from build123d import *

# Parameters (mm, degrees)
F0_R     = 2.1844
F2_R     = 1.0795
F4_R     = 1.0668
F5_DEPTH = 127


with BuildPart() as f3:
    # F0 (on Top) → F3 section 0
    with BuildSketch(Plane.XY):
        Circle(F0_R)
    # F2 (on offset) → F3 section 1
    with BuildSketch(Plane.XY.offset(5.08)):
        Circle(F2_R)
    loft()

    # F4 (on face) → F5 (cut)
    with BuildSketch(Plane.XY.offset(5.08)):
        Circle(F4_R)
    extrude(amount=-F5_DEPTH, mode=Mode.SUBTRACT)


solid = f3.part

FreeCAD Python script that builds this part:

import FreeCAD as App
import Part
import Sketcher
Q = App.Units.Quantity

doc = App.newDocument("Part")
body = doc.addObject("PartDesign::Body", "Body")

sketch1 = body.newObject("Sketcher::SketchObject", "Sketch")
sketch1.AttachmentSupport = (doc.getObject("XY_Plane"), [""])
sketch1.MapMode = "FlatFace"
sketch1.addGeometry(Part.Circle(App.Vector(0, 0, 0), App.Vector(0, 0, 1), 2.2), False)
sketch1.addConstraint([
    Sketcher.Constraint("Coincident", 0, 3, -1, 1),
    Sketcher.Constraint("Diameter", 0, Q("0.172 in")),
])

sketch2 = body.newObject("Sketcher::SketchObject", "Sketch001")
sketch2.AttachmentSupport = (doc.getObject("XY_Plane"), [""])
sketch2.MapMode = "FlatFace"
sketch2.AttachmentOffset = App.Placement(App.Vector(0, 0, 0.2 * 25.4), App.Rotation())
sketch2.addGeometry(Part.Circle(App.Vector(0, 0, 0), App.Vector(0, 0, 1), 1.1), False)
sketch2.addConstraint([
    Sketcher.Constraint("Coincident", 0, 3, -1, 1),
    Sketcher.Constraint("Diameter", 0, Q("0.085 in")),
])

additiveloft = body.newObject("PartDesign::AdditiveLoft", "AdditiveLoft")
additiveloft.Profile = sketch1
additiveloft.Sections = [sketch2]

sketch3 = body.newObject("Sketcher::SketchObject", "Sketch002")
sketch3.AttachmentSupport = (doc.getObject("XY_Plane"), [""])
sketch3.MapMode = "FlatFace"
sketch3.AttachmentOffset = App.Placement(App.Vector(0, 0, 0.2 * 25.4), App.Rotation())
sketch3.addGeometry(Part.Circle(App.Vector(0, 0, 0), App.Vector(0, 0, 1), 1.1), False)
sketch3.addConstraint([
    Sketcher.Constraint("Coincident", 0, 3, -1, 1),
    Sketcher.Constraint("Diameter", 0, Q("0.084 in")),
])
pocket1 = body.newObject("PartDesign::Pocket", "Pocket")
pocket1.Profile = sketch3
pocket1.Length = Q("5 in")

doc.recompute()
